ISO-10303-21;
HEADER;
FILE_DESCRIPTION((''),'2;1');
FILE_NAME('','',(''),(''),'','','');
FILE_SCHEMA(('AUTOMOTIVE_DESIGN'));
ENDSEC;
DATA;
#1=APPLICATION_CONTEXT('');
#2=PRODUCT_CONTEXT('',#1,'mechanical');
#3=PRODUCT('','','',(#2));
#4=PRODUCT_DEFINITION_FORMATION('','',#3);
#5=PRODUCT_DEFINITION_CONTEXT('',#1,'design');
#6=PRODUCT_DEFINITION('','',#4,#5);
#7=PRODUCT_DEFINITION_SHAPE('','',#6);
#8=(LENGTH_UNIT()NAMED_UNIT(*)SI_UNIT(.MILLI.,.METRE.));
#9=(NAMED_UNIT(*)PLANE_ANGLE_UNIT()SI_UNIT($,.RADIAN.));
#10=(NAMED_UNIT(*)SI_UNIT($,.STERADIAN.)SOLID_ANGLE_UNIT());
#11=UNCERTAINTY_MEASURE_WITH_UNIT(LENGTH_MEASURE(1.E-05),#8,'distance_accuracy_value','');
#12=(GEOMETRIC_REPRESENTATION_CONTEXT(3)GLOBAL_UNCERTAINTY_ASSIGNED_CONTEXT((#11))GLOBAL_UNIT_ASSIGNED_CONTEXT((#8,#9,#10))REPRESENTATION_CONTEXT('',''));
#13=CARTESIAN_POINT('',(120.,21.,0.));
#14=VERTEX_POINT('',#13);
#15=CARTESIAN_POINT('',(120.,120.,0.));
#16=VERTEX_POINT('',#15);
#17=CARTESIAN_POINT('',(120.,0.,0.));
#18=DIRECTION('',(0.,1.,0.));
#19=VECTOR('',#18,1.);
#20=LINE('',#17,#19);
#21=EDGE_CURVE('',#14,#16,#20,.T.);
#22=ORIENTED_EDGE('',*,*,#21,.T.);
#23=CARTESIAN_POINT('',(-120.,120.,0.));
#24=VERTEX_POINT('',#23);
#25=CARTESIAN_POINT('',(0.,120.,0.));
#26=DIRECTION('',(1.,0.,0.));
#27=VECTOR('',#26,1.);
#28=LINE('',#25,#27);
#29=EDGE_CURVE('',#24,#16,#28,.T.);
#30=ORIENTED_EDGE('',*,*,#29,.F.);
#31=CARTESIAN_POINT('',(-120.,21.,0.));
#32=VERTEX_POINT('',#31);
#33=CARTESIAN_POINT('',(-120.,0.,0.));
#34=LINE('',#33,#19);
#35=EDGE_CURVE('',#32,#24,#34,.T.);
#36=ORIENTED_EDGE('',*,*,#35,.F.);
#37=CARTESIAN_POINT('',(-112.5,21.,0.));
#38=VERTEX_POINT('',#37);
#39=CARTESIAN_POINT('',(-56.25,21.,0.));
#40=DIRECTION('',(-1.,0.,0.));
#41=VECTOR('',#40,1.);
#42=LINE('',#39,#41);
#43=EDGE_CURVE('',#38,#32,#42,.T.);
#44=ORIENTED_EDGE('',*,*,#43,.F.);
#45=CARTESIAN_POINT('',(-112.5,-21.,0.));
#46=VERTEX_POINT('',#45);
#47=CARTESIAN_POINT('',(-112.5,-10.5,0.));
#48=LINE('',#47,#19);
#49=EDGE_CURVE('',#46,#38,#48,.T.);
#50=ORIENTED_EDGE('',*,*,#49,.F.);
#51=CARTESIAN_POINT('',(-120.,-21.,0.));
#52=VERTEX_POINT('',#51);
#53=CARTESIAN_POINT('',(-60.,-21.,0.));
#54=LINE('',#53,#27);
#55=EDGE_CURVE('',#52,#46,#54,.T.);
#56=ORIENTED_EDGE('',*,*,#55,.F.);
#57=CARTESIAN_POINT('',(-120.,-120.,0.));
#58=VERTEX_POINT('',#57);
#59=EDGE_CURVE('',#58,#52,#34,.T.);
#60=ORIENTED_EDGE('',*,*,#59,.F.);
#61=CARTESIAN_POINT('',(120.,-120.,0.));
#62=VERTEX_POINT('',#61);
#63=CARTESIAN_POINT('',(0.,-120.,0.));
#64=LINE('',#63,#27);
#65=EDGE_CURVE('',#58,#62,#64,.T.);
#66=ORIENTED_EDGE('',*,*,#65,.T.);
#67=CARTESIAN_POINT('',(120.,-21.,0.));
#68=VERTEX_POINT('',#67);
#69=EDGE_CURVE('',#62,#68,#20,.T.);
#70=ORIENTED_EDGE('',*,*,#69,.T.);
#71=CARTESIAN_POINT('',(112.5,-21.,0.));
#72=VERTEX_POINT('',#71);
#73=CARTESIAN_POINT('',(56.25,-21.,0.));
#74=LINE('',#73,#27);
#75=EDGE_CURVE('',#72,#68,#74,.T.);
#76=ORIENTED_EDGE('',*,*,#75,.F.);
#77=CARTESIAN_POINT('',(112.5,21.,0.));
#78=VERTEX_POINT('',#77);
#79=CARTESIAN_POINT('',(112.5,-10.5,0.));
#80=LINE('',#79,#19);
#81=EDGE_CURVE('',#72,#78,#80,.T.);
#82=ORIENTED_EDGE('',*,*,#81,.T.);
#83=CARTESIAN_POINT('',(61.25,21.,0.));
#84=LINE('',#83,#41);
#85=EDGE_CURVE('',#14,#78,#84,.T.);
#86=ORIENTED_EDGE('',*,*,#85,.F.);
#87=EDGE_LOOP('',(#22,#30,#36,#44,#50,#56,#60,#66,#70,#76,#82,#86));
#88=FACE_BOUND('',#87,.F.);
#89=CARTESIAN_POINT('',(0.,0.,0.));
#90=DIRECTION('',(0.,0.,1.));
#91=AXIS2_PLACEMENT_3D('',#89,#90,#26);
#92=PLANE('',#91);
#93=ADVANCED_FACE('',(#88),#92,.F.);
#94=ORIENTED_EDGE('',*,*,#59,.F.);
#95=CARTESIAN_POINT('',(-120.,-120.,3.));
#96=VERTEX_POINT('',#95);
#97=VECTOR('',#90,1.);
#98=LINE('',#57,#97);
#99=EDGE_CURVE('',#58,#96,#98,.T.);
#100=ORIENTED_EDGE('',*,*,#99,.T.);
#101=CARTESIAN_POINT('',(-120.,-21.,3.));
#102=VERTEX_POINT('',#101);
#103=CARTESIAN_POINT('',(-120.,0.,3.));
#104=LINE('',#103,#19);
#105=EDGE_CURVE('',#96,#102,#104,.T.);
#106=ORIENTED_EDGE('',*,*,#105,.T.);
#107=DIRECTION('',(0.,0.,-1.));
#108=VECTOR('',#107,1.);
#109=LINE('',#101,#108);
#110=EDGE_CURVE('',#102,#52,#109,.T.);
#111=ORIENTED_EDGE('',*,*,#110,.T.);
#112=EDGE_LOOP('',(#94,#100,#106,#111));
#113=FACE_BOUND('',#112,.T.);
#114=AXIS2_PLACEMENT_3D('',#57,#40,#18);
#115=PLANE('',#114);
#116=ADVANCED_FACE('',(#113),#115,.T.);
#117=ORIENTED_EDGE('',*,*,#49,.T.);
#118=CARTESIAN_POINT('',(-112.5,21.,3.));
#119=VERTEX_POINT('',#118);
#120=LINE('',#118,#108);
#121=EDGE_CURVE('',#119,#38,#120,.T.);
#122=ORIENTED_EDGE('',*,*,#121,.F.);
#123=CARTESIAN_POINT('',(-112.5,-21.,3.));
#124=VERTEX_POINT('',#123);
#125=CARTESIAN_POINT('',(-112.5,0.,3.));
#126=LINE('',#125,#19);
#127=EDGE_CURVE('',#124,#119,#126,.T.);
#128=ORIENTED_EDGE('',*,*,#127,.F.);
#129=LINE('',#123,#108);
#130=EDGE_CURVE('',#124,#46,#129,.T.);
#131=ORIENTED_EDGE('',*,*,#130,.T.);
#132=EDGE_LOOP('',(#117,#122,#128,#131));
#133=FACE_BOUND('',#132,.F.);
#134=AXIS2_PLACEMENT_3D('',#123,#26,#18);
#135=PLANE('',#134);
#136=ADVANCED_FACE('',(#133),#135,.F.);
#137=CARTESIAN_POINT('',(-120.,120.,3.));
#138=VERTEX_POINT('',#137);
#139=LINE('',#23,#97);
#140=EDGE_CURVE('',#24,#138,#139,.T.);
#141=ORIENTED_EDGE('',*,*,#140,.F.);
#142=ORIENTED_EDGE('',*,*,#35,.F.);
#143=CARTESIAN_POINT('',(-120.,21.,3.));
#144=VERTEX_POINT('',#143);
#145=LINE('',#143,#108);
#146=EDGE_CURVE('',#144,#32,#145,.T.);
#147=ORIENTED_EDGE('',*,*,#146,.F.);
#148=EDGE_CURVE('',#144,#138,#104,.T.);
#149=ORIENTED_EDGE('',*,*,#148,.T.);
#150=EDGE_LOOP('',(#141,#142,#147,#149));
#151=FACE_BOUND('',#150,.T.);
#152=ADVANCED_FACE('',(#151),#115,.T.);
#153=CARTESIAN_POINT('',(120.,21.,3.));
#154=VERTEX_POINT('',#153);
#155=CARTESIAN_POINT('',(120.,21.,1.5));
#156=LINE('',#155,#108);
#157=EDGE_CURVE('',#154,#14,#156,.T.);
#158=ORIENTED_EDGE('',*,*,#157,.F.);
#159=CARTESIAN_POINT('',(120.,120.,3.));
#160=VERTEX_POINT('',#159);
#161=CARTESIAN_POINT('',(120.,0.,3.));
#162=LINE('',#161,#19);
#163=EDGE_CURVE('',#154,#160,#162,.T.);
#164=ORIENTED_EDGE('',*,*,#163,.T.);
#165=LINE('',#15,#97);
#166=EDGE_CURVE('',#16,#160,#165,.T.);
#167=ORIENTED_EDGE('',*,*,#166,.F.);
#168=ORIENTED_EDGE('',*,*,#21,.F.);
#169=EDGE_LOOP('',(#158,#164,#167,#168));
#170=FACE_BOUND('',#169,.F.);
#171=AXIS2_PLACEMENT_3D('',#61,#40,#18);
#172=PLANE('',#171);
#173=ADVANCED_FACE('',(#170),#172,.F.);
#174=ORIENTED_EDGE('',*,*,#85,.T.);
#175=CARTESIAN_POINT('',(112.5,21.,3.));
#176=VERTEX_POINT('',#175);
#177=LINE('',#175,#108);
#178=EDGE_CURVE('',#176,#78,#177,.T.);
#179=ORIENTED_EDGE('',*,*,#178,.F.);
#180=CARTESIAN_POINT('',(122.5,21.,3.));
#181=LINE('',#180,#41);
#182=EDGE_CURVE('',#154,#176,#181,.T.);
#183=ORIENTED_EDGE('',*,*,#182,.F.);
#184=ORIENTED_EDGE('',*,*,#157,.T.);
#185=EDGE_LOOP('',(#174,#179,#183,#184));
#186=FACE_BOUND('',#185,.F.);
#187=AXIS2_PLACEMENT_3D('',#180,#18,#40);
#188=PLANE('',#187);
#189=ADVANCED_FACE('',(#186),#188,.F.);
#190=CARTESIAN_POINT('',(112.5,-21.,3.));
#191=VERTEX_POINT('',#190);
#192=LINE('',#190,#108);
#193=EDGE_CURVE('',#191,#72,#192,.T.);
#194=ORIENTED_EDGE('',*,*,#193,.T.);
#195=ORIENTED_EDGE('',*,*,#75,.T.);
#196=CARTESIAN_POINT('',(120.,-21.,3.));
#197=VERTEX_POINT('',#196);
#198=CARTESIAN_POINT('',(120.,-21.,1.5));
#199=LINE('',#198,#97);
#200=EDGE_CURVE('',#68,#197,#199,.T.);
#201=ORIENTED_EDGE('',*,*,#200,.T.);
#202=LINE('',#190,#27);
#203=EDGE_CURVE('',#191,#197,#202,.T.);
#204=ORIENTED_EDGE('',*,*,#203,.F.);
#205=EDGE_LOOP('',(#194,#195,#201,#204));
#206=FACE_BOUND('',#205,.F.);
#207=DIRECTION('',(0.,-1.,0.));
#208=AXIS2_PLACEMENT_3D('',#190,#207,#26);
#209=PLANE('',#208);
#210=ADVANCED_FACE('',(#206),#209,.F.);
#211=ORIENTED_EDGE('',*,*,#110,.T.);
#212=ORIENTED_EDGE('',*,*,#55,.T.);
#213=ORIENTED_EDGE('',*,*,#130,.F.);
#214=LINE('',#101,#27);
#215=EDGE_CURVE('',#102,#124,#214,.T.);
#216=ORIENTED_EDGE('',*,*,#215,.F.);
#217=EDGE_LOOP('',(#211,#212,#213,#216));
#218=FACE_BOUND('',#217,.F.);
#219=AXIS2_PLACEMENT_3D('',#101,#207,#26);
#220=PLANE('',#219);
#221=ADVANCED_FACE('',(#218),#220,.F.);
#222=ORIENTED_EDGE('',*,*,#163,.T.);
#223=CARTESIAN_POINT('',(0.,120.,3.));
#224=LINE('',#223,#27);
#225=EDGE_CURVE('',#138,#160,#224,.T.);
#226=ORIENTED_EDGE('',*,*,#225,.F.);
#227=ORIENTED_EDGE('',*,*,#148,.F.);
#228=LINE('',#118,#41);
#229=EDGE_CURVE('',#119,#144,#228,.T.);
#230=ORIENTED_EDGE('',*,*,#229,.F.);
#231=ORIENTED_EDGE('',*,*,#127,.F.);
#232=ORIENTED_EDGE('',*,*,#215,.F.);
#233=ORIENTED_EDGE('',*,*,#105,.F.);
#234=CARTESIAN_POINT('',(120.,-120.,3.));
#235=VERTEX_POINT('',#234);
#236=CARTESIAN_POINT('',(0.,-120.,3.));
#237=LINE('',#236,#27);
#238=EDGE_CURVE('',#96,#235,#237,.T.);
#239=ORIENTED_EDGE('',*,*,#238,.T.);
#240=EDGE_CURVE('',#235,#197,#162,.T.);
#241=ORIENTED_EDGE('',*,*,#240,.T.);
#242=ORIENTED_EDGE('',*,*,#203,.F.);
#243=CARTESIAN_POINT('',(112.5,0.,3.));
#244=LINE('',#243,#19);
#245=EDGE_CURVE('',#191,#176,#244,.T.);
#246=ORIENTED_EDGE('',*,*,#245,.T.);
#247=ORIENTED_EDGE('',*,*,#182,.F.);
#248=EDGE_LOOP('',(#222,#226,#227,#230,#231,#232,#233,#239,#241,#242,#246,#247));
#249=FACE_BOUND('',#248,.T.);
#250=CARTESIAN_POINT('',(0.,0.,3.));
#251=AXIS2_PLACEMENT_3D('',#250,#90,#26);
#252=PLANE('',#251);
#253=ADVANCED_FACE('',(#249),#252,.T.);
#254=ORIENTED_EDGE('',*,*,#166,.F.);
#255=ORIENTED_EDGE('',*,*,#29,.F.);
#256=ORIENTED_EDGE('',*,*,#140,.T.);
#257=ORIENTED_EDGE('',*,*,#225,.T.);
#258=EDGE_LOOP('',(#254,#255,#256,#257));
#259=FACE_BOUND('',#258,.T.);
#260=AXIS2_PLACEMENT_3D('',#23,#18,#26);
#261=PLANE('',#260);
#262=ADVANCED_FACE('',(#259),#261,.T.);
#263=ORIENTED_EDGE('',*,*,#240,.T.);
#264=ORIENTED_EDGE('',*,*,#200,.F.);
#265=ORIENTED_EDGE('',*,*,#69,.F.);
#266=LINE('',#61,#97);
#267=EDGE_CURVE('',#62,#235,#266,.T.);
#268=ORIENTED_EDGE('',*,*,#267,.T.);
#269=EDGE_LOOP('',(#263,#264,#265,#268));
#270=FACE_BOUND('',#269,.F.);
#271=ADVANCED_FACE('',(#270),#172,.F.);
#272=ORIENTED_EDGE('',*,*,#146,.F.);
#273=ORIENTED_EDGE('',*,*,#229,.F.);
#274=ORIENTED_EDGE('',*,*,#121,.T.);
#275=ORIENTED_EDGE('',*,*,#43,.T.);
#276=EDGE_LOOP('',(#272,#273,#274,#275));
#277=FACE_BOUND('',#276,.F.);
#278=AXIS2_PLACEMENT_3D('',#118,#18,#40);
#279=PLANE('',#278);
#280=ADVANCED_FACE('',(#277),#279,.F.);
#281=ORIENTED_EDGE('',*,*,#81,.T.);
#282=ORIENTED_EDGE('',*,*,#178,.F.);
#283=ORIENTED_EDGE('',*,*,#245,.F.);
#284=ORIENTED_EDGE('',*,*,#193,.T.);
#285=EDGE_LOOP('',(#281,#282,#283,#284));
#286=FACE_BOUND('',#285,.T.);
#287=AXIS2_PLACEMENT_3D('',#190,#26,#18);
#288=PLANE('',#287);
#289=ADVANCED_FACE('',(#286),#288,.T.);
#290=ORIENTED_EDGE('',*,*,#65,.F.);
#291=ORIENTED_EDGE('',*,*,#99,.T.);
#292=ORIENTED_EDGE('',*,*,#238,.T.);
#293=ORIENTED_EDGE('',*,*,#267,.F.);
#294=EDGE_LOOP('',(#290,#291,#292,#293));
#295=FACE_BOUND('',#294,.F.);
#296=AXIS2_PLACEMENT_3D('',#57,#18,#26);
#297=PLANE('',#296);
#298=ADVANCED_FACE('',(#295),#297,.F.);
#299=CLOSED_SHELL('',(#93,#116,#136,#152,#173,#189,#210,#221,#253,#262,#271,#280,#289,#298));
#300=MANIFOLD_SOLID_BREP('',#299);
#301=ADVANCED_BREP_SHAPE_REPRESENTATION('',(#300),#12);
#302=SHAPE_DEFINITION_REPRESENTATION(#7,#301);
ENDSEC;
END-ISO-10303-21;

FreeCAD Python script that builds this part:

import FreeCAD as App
import Part
import Sketcher

V = App.Vector
Q = App.Units.Quantity


def add_polygon(sketch, points):
    """Adds a closed chain of lines whose ends are joined by coincident constraints."""
    first, n = sketch.GeometryCount, len(points)
    for a, b in zip(points, points[1:] + points[:1]):
        sketch.addGeometry(Part.LineSegment(App.Vector(*a, 0), App.Vector(*b, 0)), False)
    for i in range(n):
        sketch.addConstraint(Sketcher.Constraint("Coincident", first + i, 2, first + (i + 1) % n, 1))

doc = App.newDocument("Part")
params = doc.addObject("Spreadsheet::Sheet", "Params")
for row, (alias, value) in enumerate([
    ("sketch1_width", "240 mm"),
    ("pad1_length", "3 mm"),
    ("sketch2_width", "10 mm"),
    ("sketch2_height", "42 mm"),
    ("sketch2_width2", "7.5 mm"),
    ("pocket1_length", "25 mm"),
], start=1):
    params.set(f"A{row}", alias)
    params.set(f"B{row}", "=" + value)
    params.setAlias(f"B{row}", alias)

body = doc.addObject("PartDesign::Body", "Body")

sketch1 = body.newObject("Sketcher::SketchObject", "Sketch")
sketch1.AttachmentSupport = (doc.getObject("XY_Plane"), [""])
sketch1.MapMode = "FlatFace"
add_polygon(sketch1, [(-120, 120), (-120, -120), (120, -120), (120, 120)])
sketch1.addConstraint([
    Sketcher.Constraint("Vertical", 0),
    Sketcher.Constraint("Horizontal", 1),
    Sketcher.Constraint("Vertical", 2),
    Sketcher.Constraint("Horizontal", 3),
    Sketcher.Constraint("Symmetric", 0, 2, 2, 2, -1, 1),
    Sketcher.Constraint("Equal", 3, 0),
    Sketcher.Constraint("DistanceX", 1, 1, 1, 2, Q("240 mm")),
])
sketch1.setExpression("Constraints[10]", "Params.sketch1_width")
pad1 = body.newObject("PartDesign::Pad", "Pad")
pad1.Profile = sketch1
pad1.setExpression("Length", "Params.pad1_length")

sketch2 = body.newObject("Sketcher::SketchObject", "Sketch001")
sketch2.AttachmentSupport = (doc.getObject("XY_Plane"), [""])
sketch2.MapMode = "FlatFace"
sketch2.AttachmentOffset = App.Placement(V(0, 0, 3), App.Rotation())
add_polygon(sketch2, [(-120, 21), (-120, -21), (-112, -21), (-112, 21)])
add_polygon(sketch2, [(112, 21), (112, -21), (122, -21), (122, 21)])
sketch2.addConstraint([
    Sketcher.Constraint("Vertical", 0),
    Sketcher.Constraint("Horizontal", 1),
    Sketcher.Constraint("Vertical", 2),
    Sketcher.Constraint("Horizontal", 3),
    Sketcher.Constraint("Vertical", 4),
    Sketcher.Constraint("Horizontal", 5),
    Sketcher.Constraint("Vertical", 6),
    Sketcher.Constraint("Horizontal", 7),
    Sketcher.Constraint("Symmetric", 2, 2, 4, 2, -1, 1),
    Sketcher.Constraint("Horizontal", 1, 2, 4, 2),
    Sketcher.Constraint("Horizontal", 3, 2, 6, 2),
    Sketcher.Constraint("DistanceX", 5, 1, 5, 2, Q("10 mm")),
    Sketcher.Constraint("DistanceY", 0, 2, 0, 1, Q("42 mm")),
    Sketcher.Constraint("DistanceX", 1, 1, 1, 2, Q("7.5 mm")),
    Sketcher.Constraint("DistanceX", 0, 2, -1, 1, Q("120 mm")),
])
sketch2.setExpression("Constraints[19]", "Params.sketch2_width")
sketch2.setExpression("Constraints[20]", "Params.sketch2_height")
sketch2.setExpression("Constraints[21]", "Params.sketch2_width2")
pocket1 = body.newObject("PartDesign::Pocket", "Pocket")
pocket1.Profile = sketch2
pocket1.setExpression("Length", "Params.pocket1_length")

doc.recompute()
